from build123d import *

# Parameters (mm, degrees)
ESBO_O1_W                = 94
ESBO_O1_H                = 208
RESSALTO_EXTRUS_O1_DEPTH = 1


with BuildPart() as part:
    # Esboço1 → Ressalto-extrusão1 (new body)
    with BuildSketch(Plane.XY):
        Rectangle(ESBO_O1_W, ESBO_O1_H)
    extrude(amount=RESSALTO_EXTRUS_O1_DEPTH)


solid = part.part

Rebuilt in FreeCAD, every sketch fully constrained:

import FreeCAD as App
import Part
import Sketcher

V = App.Vector
Q = App.Units.Quantity

doc = App.newDocument("Part")
body = doc.addObject("PartDesign::Body", "Body")

# Sketch on XY plane
sketch1 = body.newObject("Sketcher::SketchObject", "Sketch")
sketch1.AttachmentSupport = (doc.getObject("XY_Plane"), [""])
sketch1.MapMode = "FlatFace"
sketch1.addGeometry(Part.LineSegment(V(-47, 104, 0), V(-47, -104, 0)), False)
sketch1.addGeometry(Part.LineSegment(V(-47, -104, 0), V(47, -104, 0)), False)
sketch1.addGeometry(Part.LineSegment(V(47, -104, 0), V(47, 104, 0)), False)
sketch1.addGeometry(Part.LineSegment(V(47, 104, 0), V(-47, 104, 0)), False)
sketch1.addConstraint(Sketcher.Constraint("Coincident", 0, 2, 1, 1))
sketch1.addConstraint(Sketcher.Constraint("Coincident", 1, 2, 2, 1))
sketch1.addConstraint(Sketcher.Constraint("Coincident", 2, 2, 3, 1))
sketch1.addConstraint(Sketcher.Constraint("Coincident", 3, 2, 0, 1))
sketch1.addConstraint(Sketcher.Constraint("Vertical", 0))
sketch1.addConstraint(Sketcher.Constraint("Horizontal", 1))
sketch1.addConstraint(Sketcher.Constraint("Vertical", 2))
sketch1.addConstraint(Sketcher.Constraint("Horizontal", 3))
sketch1.addConstraint(Sketcher.Constraint("Symmetric", 0, 2, 2, 2, -1, 1))
sketch1.addConstraint(Sketcher.Constraint("DistanceX", 1, 1, 1, 2, Q("94 mm")))
sketch1.addConstraint(Sketcher.Constraint("DistanceY", 0, 2, 0, 1, Q("208 mm")))
pad1 = body.newObject("PartDesign::Pad", "Pad")
pad1.Profile = sketch1
pad1.Length = 1

doc.recompute()
